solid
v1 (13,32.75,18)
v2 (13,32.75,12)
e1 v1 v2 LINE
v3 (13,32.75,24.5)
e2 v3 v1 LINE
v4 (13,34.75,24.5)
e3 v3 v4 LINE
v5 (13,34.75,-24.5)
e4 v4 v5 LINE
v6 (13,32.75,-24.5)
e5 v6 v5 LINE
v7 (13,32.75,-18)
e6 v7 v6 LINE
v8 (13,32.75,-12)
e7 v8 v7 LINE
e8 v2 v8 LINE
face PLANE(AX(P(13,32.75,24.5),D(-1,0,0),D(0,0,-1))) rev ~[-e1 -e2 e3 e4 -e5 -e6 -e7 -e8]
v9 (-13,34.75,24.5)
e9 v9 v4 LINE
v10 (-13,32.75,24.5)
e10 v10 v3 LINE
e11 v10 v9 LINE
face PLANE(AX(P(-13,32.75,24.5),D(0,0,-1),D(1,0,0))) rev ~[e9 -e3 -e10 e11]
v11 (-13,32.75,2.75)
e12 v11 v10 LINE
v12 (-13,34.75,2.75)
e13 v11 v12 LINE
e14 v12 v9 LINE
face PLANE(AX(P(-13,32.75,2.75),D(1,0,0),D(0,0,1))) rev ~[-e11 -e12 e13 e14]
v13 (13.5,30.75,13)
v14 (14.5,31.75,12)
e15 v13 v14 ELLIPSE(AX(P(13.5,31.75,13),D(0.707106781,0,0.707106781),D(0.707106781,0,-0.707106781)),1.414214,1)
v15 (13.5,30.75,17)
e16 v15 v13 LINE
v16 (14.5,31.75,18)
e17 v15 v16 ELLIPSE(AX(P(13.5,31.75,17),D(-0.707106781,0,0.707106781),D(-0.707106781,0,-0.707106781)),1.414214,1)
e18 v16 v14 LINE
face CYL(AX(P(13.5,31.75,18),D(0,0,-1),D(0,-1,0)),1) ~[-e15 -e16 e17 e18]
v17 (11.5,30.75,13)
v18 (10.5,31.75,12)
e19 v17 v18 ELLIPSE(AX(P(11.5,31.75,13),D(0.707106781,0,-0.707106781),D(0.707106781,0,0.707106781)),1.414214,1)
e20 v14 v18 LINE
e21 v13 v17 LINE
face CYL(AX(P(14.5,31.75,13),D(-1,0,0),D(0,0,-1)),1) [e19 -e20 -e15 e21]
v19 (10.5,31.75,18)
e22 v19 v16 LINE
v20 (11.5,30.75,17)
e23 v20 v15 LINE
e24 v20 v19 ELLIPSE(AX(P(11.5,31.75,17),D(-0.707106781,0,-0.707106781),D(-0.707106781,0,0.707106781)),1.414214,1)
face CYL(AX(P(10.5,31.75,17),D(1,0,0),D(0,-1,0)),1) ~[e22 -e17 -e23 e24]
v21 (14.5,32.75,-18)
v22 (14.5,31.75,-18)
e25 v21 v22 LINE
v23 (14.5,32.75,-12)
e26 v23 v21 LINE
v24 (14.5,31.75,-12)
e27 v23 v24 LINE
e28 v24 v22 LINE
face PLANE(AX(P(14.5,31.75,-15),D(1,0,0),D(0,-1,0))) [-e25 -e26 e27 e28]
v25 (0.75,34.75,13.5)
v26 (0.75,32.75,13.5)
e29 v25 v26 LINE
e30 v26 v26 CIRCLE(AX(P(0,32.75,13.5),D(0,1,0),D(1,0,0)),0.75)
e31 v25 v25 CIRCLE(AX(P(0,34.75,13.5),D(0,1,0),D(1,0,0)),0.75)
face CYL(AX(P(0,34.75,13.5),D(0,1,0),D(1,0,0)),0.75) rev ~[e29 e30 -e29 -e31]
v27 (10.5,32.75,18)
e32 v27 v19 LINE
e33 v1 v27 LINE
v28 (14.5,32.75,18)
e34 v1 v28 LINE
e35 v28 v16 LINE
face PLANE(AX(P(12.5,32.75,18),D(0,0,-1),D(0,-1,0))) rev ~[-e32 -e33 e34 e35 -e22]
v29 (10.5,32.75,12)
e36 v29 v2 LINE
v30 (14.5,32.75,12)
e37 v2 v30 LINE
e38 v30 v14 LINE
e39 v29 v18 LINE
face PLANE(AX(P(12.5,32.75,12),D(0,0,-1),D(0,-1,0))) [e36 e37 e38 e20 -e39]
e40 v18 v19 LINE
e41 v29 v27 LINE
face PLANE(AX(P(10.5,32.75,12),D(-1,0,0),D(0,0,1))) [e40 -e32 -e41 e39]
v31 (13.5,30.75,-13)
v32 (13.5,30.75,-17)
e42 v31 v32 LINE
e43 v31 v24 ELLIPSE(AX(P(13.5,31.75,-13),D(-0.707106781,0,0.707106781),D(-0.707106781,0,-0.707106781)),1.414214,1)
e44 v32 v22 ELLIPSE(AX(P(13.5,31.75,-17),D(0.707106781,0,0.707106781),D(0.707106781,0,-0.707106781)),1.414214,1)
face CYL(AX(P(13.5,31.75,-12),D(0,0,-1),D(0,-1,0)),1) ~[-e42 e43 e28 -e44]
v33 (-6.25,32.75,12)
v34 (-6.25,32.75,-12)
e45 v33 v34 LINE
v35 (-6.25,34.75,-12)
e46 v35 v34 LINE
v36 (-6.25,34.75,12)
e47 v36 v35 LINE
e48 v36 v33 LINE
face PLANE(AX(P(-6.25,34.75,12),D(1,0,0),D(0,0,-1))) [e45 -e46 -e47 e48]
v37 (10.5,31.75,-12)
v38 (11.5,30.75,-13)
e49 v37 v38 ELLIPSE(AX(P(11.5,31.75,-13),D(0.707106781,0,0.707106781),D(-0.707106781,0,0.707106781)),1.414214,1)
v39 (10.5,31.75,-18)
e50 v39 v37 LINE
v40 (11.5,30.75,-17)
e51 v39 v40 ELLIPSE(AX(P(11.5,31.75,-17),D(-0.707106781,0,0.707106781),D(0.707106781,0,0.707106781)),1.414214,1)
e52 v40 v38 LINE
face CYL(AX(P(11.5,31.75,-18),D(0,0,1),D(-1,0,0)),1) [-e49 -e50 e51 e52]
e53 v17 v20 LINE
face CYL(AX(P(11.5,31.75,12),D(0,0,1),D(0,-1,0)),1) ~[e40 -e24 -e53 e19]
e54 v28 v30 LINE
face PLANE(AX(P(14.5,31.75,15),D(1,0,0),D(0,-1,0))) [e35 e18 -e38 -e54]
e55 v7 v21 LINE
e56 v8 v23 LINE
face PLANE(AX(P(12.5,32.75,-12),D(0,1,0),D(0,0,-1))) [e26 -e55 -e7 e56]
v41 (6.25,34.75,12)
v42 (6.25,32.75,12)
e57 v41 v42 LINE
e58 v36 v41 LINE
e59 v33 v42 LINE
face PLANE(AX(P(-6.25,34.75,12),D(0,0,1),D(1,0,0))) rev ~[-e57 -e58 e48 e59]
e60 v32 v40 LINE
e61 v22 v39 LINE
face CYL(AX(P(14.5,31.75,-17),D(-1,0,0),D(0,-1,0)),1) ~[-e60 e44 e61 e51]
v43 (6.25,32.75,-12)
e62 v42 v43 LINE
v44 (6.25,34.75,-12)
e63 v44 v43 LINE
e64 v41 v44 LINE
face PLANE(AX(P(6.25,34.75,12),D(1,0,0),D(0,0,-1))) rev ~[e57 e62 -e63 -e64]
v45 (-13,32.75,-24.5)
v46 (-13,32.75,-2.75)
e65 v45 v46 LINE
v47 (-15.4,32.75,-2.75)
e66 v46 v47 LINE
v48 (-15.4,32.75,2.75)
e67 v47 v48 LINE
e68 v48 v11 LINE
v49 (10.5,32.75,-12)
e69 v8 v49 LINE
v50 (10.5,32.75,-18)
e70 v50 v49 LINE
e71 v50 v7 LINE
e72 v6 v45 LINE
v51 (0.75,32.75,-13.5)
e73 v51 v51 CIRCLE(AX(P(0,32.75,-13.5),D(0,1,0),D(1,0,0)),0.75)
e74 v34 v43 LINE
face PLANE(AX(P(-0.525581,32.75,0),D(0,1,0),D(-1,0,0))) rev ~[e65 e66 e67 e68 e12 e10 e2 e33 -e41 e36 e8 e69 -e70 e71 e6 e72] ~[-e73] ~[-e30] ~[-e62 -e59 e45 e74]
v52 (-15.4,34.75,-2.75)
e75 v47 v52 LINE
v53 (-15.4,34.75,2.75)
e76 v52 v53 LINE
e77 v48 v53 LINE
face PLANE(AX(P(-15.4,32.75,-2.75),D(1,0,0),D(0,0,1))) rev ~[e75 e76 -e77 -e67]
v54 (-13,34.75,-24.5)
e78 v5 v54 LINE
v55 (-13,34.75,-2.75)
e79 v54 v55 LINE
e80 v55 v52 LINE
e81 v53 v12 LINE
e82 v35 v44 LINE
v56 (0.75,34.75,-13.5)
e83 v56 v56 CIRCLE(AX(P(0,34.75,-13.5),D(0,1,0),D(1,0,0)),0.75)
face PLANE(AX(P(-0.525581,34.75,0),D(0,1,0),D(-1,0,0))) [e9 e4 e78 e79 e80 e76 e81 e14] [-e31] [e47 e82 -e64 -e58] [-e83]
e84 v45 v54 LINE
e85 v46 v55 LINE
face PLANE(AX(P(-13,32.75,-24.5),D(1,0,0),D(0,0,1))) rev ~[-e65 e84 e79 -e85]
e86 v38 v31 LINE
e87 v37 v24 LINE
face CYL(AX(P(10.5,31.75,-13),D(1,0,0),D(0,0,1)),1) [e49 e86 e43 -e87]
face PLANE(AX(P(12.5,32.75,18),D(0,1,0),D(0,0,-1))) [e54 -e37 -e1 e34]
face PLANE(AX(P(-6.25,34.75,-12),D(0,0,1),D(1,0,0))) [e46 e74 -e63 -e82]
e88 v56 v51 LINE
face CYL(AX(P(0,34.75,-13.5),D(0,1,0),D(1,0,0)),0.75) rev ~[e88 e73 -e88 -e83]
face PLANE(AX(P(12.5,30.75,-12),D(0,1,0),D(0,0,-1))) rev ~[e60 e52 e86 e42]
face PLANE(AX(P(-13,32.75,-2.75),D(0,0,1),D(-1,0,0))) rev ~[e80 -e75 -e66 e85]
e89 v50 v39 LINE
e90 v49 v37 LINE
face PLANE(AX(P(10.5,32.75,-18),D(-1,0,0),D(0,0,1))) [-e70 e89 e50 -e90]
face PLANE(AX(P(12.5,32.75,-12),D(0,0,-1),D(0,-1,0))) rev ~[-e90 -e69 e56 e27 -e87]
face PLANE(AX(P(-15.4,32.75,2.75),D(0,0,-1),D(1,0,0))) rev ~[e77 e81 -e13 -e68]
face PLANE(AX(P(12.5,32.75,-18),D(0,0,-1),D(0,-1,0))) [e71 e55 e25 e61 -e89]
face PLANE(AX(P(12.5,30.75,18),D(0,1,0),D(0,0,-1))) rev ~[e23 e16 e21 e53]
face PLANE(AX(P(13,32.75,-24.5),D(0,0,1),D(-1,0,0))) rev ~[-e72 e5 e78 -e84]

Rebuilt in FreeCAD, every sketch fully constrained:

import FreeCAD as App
import Part
import Sketcher
from FreeCAD import Vector
Q = App.Units.Quantity


def edges_at(feature, points):
    """Names of the edges that pass closest to the given points."""
    edges = feature.Shape.Edges
    near = lambda p: min(range(len(edges)), key=lambda i: edges[i].distToShape(Part.Vertex(*p))[0])
    return sorted({f"Edge{near(p) + 1}" for p in points})

doc = App.newDocument("Part")
body = doc.addObject("PartDesign::Body", "Body")

# Sketch on XZ plane
sketch1 = body.newObject("Sketcher::SketchObject", "Sketch")
sketch1.AttachmentSupport = (doc.getObject("XZ_Plane"), [""])
sketch1.MapMode = "FlatFace"
sketch1.AttachmentOffset = App.Placement(Vector(0, 0, -32.75), App.Rotation())
sketch1.addGeometry([
    Part.LineSegment(Vector(-13, 24.5, 0), Vector(13, 24.5, 0)),  # 0
    Part.LineSegment(Vector(13, 24.5, 0), Vector(13, -24.5, 0)),  # 1
    Part.LineSegment(Vector(13, -24.5, 0), Vector(-13, -24.5, 0)),  # 2
    Part.LineSegment(Vector(-13, -24.5, 0), Vector(-13, -2.75, 0)),  # 3
    Part.LineSegment(Vector(-13, -2.75, 0), Vector(-15.4, -2.75, 0)),  # 4
    Part.LineSegment(Vector(-15.4, -2.75, 0), Vector(-15.4, 2.75, 0)),  # 5
    Part.LineSegment(Vector(-15.4, 2.75, 0), Vector(-13, 2.75, 0)),  # 6
    Part.LineSegment(Vector(-13, 2.75, 0), Vector(-13, 24.5, 0)),  # 7
], False)
sketch1.addConstraint([
    Sketcher.Constraint("Coincident", 0, 2, 1, 1),
    Sketcher.Constraint("Coincident", 1, 2, 2, 1),
    Sketcher.Constraint("Coincident", 2, 2, 3, 1),
    Sketcher.Constraint("Coincident", 3, 2, 4, 1),
    Sketcher.Constraint("Coincident", 4, 2, 5, 1),
    Sketcher.Constraint("Coincident", 5, 2, 6, 1),
    Sketcher.Constraint("Coincident", 6, 2, 7, 1),
    Sketcher.Constraint("Coincident", 7, 2, 0, 1),
    Sketcher.Constraint("Horizontal", 0),
    Sketcher.Constraint("Vertical", 1),
    Sketcher.Constraint("Horizontal", 2),
    Sketcher.Constraint("Vertical", 3),
    Sketcher.Constraint("Horizontal", 4),
    Sketcher.Constraint("Vertical", 5),
    Sketcher.Constraint("Horizontal", 6),
    Sketcher.Constraint("Vertical", 7),
    Sketcher.Constraint("Symmetric", 0, 2, 2, 2, -1, 1),
    Sketcher.Constraint("Symmetric", 3, 2, 6, 2, -1),
    Sketcher.Constraint("DistanceX", 0, 1, 0, 2, Q("26 mm")),
    Sketcher.Constraint("DistanceY", 1, 2, 1, 1, Q("49 mm")),
    Sketcher.Constraint("DistanceX", 4, 2, 4, 1, Q("2.4 mm")),
    Sketcher.Constraint("DistanceY", 5, 1, 5, 2, Q("5.5 mm")),
])
pad1 = body.newObject("PartDesign::Pad", "Pad")
pad1.Profile = sketch1
pad1.Length = 2
pad1.Reversed = True

# Sketch on XZ plane
sketch2 = body.newObject("Sketcher::SketchObject", "Sketch001")
sketch2.AttachmentSupport = (doc.getObject("XZ_Plane"), [""])
sketch2.MapMode = "FlatFace"
sketch2.AttachmentOffset = App.Placement(Vector(0, 0, -32.75), App.Rotation())
sketch2.addGeometry([
    Part.LineSegment(Vector(10.5, 18, 0), Vector(10.5, 12, 0)),  # 0
    Part.LineSegment(Vector(10.5, 12, 0), Vector(12.5, 12, 0)),  # 1
    Part.LineSegment(Vector(12.5, 12, 0), Vector(12.5, 18, 0)),  # 2
    Part.LineSegment(Vector(12.5, 18, 0), Vector(10.5, 18, 0)),  # 3
    Part.LineSegment(Vector(10.5, -12, 0), Vector(10.5, -18, 0)),  # 4
    Part.LineSegment(Vector(10.5, -18, 0), Vector(12.5, -18, 0)),  # 5
    Part.LineSegment(Vector(12.5, -18, 0), Vector(12.5, -12, 0)),  # 6
    Part.LineSegment(Vector(12.5, -12, 0), Vector(10.5, -12, 0)),  # 7
], False)
sketch2.addConstraint([
    Sketcher.Constraint("Coincident", 0, 2, 1, 1),
    Sketcher.Constraint("Coincident", 1, 2, 2, 1),
    Sketcher.Constraint("Coincident", 2, 2, 3, 1),
    Sketcher.Constraint("Coincident", 3, 2, 0, 1),
    Sketcher.Constraint("Coincident", 4, 2, 5, 1),
    Sketcher.Constraint("Coincident", 5, 2, 6, 1),
    Sketcher.Constraint("Coincident", 6, 2, 7, 1),
    Sketcher.Constraint("Coincident", 7, 2, 4, 1),
    Sketcher.Constraint("Vertical", 0),
    Sketcher.Constraint("Horizontal", 1),
    Sketcher.Constraint("Vertical", 2),
    Sketcher.Constraint("Horizontal", 3),
    Sketcher.Constraint("Vertical", 4),
    Sketcher.Constraint("Horizontal", 5),
    Sketcher.Constraint("Vertical", 6),
    Sketcher.Constraint("Horizontal", 7),
    Sketcher.Constraint("Symmetric", 3, 2, 4, 2, -1),
    Sketcher.Constraint("Symmetric", 1, 2, 6, 2, -1),
    Sketcher.Constraint("DistanceX", 1, 1, 1, 2, Q("2 mm")),
    Sketcher.Constraint("DistanceY", 0, 2, 0, 1, Q("6 mm")),
    Sketcher.Constraint("DistanceY", -1, 1, 0, 2, Q("12 mm")),
    Sketcher.Constraint("DistanceX", -1, 1, 0, 2, Q("10.5 mm")),
])
pad2 = body.newObject("PartDesign::Pad", "Pad001")
pad2.Profile = sketch2
pad2.Length = 2

# Sketch on YZ plane
sketch3 = body.newObject("Sketcher::SketchObject", "Sketch002")
sketch3.AttachmentSupport = (doc.getObject("YZ_Plane"), [""])
sketch3.MapMode = "FlatFace"
sketch3.AttachmentOffset = App.Placement(Vector(0, 0, 12.5), App.Rotation())
sketch3.addGeometry([
    Part.LineSegment(Vector(32.75, 12, 0), Vector(32.75, 18, 0)),
    Part.LineSegment(Vector(32.75, 18, 0), Vector(30.75, 18, 0)),
    Part.LineSegment(Vector(30.75, 18, 0), Vector(30.75, 12, 0)),
    Part.LineSegment(Vector(30.75, 12, 0), Vector(32.75, 12, 0)),
], False)
sketch3.addConstraint([
    Sketcher.Constraint("Coincident", 0, 2, 1, 1),
    Sketcher.Constraint("Coincident", 1, 2, 2, 1),
    Sketcher.Constraint("Coincident", 2, 2, 3, 1),
    Sketcher.Constraint("Coincident", 3, 2, 0, 1),
    Sketcher.Constraint("Vertical", 0),
    Sketcher.Constraint("Horizontal", 1),
    Sketcher.Constraint("Vertical", 2),
    Sketcher.Constraint("Horizontal", 3),
    Sketcher.Constraint("DistanceX", 1, 2, 1, 1, Q("2 mm")),
    Sketcher.Constraint("DistanceY", 0, 1, 0, 2, Q("6 mm")),
    Sketcher.Constraint("DistanceY", -1, 1, 0, 2, Q("18 mm")),
    Sketcher.Constraint("DistanceX", -1, 1, 0, 2, Q("32.75 mm")),
])
pad3 = body.newObject("PartDesign::Pad", "Pad002")
pad3.Profile = sketch3
pad3.Length = 2

# Sketch on YZ plane
sketch4 = body.newObject("Sketcher::SketchObject", "Sketch003")
sketch4.AttachmentSupport = (doc.getObject("YZ_Plane"), [""])
sketch4.MapMode = "FlatFace"
sketch4.AttachmentOffset = App.Placement(Vector(0, 0, 12.5), App.Rotation())
sketch4.addGeometry([
    Part.LineSegment(Vector(32.75, -18, 0), Vector(32.75, -12, 0)),
    Part.LineSegment(Vector(32.75, -12, 0), Vector(30.75, -12, 0)),
    Part.LineSegment(Vector(30.75, -12, 0), Vector(30.75, -18, 0)),
    Part.LineSegment(Vector(30.75, -18, 0), Vector(32.75, -18, 0)),
], False)
sketch4.addConstraint([
    Sketcher.Constraint("Coincident", 0, 2, 1, 1),
    Sketcher.Constraint("Coincident", 1, 2, 2, 1),
    Sketcher.Constraint("Coincident", 2, 2, 3, 1),
    Sketcher.Constraint("Coincident", 3, 2, 0, 1),
    Sketcher.Constraint("Vertical", 0),
    Sketcher.Constraint("Horizontal", 1),
    Sketcher.Constraint("Vertical", 2),
    Sketcher.Constraint("Horizontal", 3),
    Sketcher.Constraint("DistanceX", 1, 2, 1, 1, Q("2 mm")),
    Sketcher.Constraint("DistanceY", 0, 1, 0, 2, Q("6 mm")),
    Sketcher.Constraint("DistanceY", 0, 2, -1, 1, Q("12 mm")),
    Sketcher.Constraint("DistanceX", -1, 1, 0, 2, Q("32.75 mm")),
])
pad4 = body.newObject("PartDesign::Pad", "Pad003")
pad4.Profile = sketch4
pad4.Length = 2
doc.recompute()

fillet = body.newObject("PartDesign::Fillet", "Fillet")
fillet.Base = (pad4, edges_at(pad4, [
    (14.5, 30.75, -15),
    (14.5, 30.75, 15),
    (10.5, 30.75, 15),
    (10.5, 30.75, -15),
    (12.5, 30.75, 18),
    (12.5, 30.75, 12),
    (12.5, 30.75, -12),
    (12.5, 30.75, -18),
]))
fillet.Radius = 1

# Sketch on XZ plane
sketch5 = body.newObject("Sketcher::SketchObject", "Sketch004")
sketch5.AttachmentSupport = (doc.getObject("XZ_Plane"), [""])
sketch5.MapMode = "FlatFace"
sketch5.AttachmentOffset = App.Placement(Vector(0, 0, -34.75), App.Rotation())
sketch5.addGeometry([
    Part.Circle(Vector(0, -13.5, 0), Vector(0, 0, 1), 0.75),  # 0
    Part.Circle(Vector(0, 13.5, 0), Vector(0, 0, 1), 0.75),  # 1
    Part.LineSegment(Vector(-6.25, -12, 0), Vector(-6.25, 12, 0)),  # 2
    Part.LineSegment(Vector(-6.25, 12, 0), Vector(6.25, 12, 0)),  # 3
    Part.LineSegment(Vector(6.25, 12, 0), Vector(6.25, -12, 0)),  # 4
    Part.LineSegment(Vector(6.25, -12, 0), Vector(-6.25, -12, 0)),  # 5
], False)
sketch5.addConstraint([
    Sketcher.Constraint("Coincident", 2, 2, 3, 1),
    Sketcher.Constraint("Coincident", 3, 2, 4, 1),
    Sketcher.Constraint("Coincident", 4, 2, 5, 1),
    Sketcher.Constraint("Coincident", 5, 2, 2, 1),
    Sketcher.Constraint("Vertical", 2),
    Sketcher.Constraint("Horizontal", 3),
    Sketcher.Constraint("Vertical", 4),
    Sketcher.Constraint("Horizontal", 5),
    Sketcher.Constraint("Equal", 0, 1),
    Sketcher.Constraint("Symmetric", 0, 3, 1, 3, -1, 1),
    Sketcher.Constraint("Symmetric", 2, 2, 4, 2, -1, 1),
    Sketcher.Constraint("PointOnObject", 0, 3, -2),
    Sketcher.Constraint("Diameter", 0, Q("1.5 mm")),
    Sketcher.Constraint("DistanceY", 2, 1, 2, 2, Q("24 mm")),
    Sketcher.Constraint("DistanceX", 3, 1, 3, 2, Q("12.5 mm")),
    Sketcher.Constraint("DistanceY", 0, 3, 1, 3, Q("27 mm")),
])
pocket1 = body.newObject("PartDesign::Pocket", "Pocket")
pocket1.Profile = sketch5
pocket1.Length = 5
pocket1.Reversed = True

doc.recompute()
